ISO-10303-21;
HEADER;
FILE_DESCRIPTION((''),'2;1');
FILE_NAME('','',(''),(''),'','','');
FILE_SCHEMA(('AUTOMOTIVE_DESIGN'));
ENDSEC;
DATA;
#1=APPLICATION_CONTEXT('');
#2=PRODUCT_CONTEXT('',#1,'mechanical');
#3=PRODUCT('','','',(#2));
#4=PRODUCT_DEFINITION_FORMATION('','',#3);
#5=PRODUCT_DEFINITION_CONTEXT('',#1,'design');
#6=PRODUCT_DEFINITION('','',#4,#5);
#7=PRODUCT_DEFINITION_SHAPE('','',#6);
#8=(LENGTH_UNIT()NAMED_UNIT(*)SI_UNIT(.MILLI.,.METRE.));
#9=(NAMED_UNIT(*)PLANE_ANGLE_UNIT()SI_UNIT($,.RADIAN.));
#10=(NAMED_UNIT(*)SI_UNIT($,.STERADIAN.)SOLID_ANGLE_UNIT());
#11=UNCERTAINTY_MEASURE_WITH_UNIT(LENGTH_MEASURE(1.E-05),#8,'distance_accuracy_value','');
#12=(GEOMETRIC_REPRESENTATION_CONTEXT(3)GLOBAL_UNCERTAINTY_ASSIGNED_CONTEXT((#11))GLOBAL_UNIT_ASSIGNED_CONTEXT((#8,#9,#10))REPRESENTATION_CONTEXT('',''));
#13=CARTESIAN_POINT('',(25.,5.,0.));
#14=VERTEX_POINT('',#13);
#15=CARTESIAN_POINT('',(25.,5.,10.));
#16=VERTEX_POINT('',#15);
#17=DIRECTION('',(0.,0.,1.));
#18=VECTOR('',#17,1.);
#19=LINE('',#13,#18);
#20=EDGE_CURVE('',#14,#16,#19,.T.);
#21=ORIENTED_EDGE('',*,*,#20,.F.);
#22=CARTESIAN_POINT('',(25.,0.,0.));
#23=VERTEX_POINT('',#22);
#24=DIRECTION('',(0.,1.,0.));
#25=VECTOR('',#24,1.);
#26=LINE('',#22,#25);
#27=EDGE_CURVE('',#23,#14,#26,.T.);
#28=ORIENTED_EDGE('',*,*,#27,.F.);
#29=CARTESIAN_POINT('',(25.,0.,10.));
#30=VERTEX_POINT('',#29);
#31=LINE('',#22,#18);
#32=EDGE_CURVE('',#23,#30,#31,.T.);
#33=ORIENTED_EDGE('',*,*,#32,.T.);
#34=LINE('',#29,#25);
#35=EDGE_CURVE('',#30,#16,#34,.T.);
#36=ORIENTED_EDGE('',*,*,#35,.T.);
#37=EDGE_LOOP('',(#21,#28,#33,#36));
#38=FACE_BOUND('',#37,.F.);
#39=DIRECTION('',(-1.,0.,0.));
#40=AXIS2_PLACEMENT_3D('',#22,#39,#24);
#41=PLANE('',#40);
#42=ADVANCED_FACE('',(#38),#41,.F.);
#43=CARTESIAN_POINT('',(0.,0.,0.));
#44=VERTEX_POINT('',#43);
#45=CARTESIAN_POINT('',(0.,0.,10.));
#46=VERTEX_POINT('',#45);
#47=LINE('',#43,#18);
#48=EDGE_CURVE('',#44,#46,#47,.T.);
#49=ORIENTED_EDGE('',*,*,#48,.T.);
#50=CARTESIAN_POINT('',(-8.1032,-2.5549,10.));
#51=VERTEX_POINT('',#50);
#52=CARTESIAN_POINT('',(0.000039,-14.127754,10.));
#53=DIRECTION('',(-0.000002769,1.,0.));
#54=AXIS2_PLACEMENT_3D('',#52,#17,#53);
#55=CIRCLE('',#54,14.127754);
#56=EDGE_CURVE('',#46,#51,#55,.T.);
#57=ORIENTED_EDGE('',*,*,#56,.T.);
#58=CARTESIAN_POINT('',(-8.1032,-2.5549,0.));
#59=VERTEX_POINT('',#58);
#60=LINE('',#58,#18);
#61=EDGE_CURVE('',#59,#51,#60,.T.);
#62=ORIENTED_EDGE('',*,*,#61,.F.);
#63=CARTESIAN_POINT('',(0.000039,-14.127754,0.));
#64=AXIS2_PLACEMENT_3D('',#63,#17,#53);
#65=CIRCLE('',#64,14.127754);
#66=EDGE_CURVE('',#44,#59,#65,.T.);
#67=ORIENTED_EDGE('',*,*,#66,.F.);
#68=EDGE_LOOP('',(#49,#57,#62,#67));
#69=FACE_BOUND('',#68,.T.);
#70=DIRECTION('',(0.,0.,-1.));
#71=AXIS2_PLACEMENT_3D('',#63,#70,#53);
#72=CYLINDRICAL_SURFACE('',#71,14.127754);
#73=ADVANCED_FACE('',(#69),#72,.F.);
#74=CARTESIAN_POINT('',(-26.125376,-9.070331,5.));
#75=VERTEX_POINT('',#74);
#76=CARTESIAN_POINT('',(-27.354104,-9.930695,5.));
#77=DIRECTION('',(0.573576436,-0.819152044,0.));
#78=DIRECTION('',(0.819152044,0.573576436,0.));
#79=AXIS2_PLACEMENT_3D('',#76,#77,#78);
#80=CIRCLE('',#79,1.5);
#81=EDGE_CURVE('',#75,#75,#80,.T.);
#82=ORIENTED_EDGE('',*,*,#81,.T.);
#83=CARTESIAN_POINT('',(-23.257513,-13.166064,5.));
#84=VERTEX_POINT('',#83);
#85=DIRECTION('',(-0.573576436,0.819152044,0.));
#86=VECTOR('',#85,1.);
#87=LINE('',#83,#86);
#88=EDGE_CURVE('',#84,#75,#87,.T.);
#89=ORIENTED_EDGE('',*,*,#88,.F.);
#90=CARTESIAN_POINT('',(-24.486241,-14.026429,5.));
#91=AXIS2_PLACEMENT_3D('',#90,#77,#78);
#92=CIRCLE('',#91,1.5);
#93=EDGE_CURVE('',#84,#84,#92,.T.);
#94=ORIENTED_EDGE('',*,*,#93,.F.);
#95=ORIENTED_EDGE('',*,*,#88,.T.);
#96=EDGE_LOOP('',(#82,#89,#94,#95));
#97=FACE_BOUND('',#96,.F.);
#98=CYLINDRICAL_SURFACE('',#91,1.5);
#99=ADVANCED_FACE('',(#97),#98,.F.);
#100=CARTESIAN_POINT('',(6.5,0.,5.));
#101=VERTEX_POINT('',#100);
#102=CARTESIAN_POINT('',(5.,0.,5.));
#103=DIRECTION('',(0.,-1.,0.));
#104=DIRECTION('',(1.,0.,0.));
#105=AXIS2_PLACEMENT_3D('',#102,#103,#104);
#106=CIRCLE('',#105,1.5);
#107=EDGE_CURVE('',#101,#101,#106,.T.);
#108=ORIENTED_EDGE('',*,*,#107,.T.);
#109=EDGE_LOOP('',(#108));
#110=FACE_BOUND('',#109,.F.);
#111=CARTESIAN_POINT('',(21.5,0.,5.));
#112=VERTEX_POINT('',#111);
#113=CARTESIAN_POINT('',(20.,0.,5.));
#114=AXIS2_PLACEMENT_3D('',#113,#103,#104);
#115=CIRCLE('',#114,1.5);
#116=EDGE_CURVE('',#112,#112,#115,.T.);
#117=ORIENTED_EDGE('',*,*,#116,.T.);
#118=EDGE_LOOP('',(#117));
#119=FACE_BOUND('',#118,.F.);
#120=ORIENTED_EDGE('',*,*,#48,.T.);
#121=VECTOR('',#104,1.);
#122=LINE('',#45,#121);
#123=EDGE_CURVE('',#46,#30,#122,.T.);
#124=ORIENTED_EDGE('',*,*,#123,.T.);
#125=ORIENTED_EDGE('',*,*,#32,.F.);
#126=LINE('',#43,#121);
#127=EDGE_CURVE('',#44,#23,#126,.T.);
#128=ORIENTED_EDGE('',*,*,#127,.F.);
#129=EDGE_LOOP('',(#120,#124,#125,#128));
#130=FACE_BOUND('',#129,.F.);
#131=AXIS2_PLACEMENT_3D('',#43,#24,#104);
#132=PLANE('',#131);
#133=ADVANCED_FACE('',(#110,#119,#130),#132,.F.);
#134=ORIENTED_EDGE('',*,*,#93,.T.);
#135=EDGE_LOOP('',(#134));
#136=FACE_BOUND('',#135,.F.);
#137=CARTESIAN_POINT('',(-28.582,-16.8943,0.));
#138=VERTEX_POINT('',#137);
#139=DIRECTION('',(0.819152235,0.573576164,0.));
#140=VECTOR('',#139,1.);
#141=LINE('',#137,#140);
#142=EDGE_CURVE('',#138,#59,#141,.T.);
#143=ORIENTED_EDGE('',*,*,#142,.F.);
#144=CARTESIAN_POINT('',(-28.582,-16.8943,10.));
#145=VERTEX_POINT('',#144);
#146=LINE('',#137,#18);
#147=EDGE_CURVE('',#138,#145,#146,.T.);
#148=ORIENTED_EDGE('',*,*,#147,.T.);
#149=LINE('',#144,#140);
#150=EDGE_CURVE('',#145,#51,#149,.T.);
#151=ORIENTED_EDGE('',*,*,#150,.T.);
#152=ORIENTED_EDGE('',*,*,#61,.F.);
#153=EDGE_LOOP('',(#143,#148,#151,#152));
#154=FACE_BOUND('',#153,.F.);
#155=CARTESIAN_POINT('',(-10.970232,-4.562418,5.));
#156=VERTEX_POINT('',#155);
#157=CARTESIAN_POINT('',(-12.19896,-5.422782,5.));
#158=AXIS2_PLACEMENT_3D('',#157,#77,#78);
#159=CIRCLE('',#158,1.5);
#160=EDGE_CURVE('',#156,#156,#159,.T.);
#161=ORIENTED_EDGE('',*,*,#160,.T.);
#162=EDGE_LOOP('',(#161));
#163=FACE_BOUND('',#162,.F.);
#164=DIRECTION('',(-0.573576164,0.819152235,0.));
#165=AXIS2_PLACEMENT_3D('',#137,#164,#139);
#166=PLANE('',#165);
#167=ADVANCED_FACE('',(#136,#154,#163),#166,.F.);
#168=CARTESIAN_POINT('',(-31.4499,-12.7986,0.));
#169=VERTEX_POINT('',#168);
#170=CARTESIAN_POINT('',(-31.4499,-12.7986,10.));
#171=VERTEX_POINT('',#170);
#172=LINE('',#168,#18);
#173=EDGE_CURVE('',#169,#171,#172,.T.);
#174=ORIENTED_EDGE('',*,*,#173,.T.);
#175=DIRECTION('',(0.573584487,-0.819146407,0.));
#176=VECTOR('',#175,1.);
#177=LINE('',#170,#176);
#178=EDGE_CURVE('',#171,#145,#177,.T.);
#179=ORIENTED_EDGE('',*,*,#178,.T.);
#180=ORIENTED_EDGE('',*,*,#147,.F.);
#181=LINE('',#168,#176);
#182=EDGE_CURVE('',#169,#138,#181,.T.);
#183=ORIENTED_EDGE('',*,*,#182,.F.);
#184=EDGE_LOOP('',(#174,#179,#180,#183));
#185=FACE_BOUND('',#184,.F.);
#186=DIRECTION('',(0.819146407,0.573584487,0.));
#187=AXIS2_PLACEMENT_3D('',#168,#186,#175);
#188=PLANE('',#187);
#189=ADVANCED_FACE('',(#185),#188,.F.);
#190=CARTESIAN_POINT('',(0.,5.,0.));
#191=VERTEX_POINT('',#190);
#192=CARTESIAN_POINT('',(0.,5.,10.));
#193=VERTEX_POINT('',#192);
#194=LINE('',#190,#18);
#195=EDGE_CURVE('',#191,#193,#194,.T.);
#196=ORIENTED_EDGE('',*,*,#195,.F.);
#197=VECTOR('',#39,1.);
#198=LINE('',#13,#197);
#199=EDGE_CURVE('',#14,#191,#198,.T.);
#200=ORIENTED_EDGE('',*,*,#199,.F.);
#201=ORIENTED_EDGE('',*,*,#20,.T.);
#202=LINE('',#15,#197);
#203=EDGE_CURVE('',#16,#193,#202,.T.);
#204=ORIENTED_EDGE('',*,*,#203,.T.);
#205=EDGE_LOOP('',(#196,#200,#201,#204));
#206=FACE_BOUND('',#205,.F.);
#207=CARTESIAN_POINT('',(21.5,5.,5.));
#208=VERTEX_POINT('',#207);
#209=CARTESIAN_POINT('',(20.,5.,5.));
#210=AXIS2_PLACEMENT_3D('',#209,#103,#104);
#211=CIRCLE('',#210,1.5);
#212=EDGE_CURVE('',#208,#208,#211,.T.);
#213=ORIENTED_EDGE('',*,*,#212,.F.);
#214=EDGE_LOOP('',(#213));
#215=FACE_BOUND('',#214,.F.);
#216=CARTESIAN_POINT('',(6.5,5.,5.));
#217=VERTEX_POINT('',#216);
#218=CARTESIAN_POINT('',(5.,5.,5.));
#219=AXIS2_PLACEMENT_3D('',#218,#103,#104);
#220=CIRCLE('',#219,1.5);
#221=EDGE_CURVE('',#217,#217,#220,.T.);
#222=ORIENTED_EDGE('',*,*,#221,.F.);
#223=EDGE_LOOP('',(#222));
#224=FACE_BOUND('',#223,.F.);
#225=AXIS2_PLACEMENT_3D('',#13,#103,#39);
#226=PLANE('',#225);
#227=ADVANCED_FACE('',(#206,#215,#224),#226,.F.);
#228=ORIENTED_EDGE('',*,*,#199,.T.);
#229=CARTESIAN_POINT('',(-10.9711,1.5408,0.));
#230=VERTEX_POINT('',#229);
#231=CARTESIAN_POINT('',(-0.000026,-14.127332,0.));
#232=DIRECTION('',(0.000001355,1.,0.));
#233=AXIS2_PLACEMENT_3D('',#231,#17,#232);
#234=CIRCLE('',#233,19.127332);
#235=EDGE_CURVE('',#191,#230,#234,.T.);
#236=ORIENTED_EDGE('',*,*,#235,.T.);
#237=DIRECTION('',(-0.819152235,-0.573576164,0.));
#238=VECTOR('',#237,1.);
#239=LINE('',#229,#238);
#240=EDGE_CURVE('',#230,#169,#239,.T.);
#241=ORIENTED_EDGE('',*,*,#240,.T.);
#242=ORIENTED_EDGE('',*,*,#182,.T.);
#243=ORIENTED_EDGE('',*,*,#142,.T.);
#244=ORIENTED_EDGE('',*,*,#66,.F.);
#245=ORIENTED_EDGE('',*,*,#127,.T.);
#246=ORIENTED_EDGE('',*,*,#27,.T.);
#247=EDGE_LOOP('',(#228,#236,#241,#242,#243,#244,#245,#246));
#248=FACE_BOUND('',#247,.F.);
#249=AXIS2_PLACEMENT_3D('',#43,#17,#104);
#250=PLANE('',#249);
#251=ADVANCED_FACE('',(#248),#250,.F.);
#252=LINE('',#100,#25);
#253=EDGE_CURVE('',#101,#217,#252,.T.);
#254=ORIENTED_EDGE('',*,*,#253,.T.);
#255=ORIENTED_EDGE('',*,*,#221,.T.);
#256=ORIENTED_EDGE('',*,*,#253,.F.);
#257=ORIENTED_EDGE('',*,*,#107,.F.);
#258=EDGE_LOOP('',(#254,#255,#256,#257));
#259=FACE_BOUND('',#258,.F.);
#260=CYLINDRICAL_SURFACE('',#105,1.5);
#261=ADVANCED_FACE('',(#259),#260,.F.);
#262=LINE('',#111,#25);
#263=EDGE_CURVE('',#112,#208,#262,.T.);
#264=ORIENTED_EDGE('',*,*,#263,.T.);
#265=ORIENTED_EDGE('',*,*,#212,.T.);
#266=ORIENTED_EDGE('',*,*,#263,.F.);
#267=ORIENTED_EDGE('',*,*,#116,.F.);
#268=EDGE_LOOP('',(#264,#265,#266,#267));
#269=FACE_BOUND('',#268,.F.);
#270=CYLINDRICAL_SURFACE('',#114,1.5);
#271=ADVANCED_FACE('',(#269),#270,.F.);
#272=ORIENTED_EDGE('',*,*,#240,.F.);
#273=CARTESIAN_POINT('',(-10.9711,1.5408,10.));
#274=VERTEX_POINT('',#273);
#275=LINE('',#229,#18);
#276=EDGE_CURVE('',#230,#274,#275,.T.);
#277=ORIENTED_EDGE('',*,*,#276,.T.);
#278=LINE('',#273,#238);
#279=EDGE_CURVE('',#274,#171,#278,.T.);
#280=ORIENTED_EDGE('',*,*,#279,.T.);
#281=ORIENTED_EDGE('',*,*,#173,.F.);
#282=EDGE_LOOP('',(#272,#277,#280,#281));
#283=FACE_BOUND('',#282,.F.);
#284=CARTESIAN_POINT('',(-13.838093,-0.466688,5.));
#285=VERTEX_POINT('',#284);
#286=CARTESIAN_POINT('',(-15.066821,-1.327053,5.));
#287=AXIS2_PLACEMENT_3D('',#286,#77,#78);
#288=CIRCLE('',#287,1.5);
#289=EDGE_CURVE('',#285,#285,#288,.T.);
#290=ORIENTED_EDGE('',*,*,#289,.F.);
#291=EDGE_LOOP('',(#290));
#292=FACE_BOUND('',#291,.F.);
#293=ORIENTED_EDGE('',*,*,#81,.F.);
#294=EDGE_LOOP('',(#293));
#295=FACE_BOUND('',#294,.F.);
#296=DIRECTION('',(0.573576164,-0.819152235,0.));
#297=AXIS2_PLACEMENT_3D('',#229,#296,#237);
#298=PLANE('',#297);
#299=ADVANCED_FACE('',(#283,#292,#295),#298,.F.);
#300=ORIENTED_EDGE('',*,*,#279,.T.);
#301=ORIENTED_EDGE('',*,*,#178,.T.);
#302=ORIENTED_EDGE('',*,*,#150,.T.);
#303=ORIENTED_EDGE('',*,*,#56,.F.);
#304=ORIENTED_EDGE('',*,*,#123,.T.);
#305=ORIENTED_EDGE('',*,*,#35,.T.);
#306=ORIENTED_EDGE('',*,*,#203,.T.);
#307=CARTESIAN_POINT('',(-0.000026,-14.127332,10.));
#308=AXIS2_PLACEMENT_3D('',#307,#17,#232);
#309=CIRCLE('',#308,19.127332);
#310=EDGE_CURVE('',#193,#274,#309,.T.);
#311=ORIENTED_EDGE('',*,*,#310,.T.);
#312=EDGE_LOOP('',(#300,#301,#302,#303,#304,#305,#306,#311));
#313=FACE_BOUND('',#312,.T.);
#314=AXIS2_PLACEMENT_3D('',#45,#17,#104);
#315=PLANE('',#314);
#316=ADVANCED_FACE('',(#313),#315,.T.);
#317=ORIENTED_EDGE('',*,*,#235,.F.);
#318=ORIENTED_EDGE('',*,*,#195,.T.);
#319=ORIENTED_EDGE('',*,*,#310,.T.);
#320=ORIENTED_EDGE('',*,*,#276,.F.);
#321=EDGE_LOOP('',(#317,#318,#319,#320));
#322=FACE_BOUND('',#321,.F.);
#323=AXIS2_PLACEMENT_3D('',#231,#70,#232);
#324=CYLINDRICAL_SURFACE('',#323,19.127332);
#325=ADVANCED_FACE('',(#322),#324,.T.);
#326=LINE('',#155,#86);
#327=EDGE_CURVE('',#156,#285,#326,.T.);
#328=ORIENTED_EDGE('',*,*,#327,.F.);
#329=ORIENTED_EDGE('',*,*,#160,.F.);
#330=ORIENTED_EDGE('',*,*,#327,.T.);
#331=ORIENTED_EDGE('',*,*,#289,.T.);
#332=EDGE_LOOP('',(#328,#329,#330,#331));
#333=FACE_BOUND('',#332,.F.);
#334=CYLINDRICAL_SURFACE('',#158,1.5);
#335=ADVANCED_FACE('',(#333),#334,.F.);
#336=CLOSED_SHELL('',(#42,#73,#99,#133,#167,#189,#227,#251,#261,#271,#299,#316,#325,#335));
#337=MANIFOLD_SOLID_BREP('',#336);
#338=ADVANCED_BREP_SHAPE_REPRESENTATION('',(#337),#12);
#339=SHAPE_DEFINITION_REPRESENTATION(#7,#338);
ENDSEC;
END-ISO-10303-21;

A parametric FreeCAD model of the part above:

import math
import FreeCAD as App
import Part
import Sketcher

V = App.Vector
Q = App.Units.Quantity

doc = App.newDocument("Part")
body = doc.addObject("PartDesign::Body", "Body")

sketch1 = body.newObject("Sketcher::SketchObject", "Sketch")
sketch1.AttachmentSupport = (doc.getObject("XY_Plane"), [""])
sketch1.MapMode = "FlatFace"
sketch1.addGeometry(Part.LineSegment(V(25, 5, 0), V(0, 5, 0)), False)
sketch1.addGeometry(Part.ArcOfCircle(Part.Circle(V(0, -14.1, 0), V(0, 0, 1), 19.1), math.radians(90), math.radians(125)), False)
sketch1.addGeometry(Part.LineSegment(V(-11, 1.5, 0), V(-31.4, -12.8, 0)), False)
sketch1.addGeometry(Part.LineSegment(V(-31.4, -12.8, 0), V(-28.6, -16.9, 0)), False)
sketch1.addGeometry(Part.LineSegment(V(-28.6, -16.9, 0), V(-8.1, -2.6, 0)), False)
sketch1.addGeometry(Part.ArcOfCircle(Part.Circle(V(0, -14.1, 0), V(0, 0, 1), 14.1), math.radians(90), math.radians(125)), False)
sketch1.addGeometry(Part.LineSegment(V(0, 0, 0), V(25, 0, 0)), False)
sketch1.addGeometry(Part.LineSegment(V(25, 0, 0), V(25, 5, 0)), False)
sketch1.addConstraint(Sketcher.Constraint("Tangent", 0, 2, 1, 1))
sketch1.addConstraint(Sketcher.Constraint("Tangent", 1, 2, 2, 1))
sketch1.addConstraint(Sketcher.Constraint("Coincident", 2, 2, 3, 1))
sketch1.addConstraint(Sketcher.Constraint("Coincident", 3, 2, 4, 1))
sketch1.addConstraint(Sketcher.Constraint("Tangent", 4, 2, 5, 2))
sketch1.addConstraint(Sketcher.Constraint("Tangent", 5, 1, 6, 1))
sketch1.addConstraint(Sketcher.Constraint("Coincident", 6, 2, 7, 1))
sketch1.addConstraint(Sketcher.Constraint("Coincident", 7, 2, 0, 1))
sketch1.addConstraint(Sketcher.Constraint("Horizontal", 0))
sketch1.addConstraint(Sketcher.Constraint("Horizontal", 6))
sketch1.addConstraint(Sketcher.Constraint("Vertical", 7))
sketch1.addConstraint(Sketcher.Constraint("Coincident", 5, 1, -1, 1))
sketch1.addConstraint(Sketcher.Constraint("Coincident", 5, 3, 1, 3))
sketch1.addConstraint(Sketcher.Constraint("Perpendicular", 2, 3))
sketch1.addConstraint(Sketcher.Constraint("Perpendicular", 3, 4))
sketch1.addConstraint(Sketcher.Constraint("DistanceX", 0, 2, 0, 1, 25.0))
sketch1.addConstraint(Sketcher.Constraint("DistanceY", 7, 1, 7, 2, 5.0))
sketch1.addConstraint(Sketcher.Constraint("Angle", 2, Q("-145 deg")))
sketch1.addConstraint(Sketcher.Constraint("Distance", 2, 25.0))
sketch1.addConstraint(Sketcher.Constraint("Radius", 1, 19.1275))
pad1 = body.newObject("PartDesign::Pad", "Pad")
pad1.Profile = sketch1
pad1.Length = 10

sketch2 = body.newObject("Sketcher::SketchObject", "Sketch001")
sketch2.AttachmentSupport = (doc.getObject("XZ_Plane"), [""])
sketch2.MapMode = "FlatFace"
sketch2.addGeometry(Part.Circle(V(5, 5, 0), V(0, 0, 1), 1.5), False)
sketch2.addGeometry(Part.Circle(V(20, 5, 0), V(0, 0, 1), 1.5), False)
sketch2.addConstraint(Sketcher.Constraint("Equal", 0, 1))
sketch2.addConstraint(Sketcher.Constraint("Horizontal", 0, 3, 1, 3))
sketch2.addConstraint(Sketcher.Constraint("Diameter", 0, 3.0))
sketch2.addConstraint(Sketcher.Constraint("DistanceX", -1, 1, 0, 3, 5.0))
sketch2.addConstraint(Sketcher.Constraint("DistanceY", -1, 1, 0, 3, 5.0))
sketch2.addConstraint(Sketcher.Constraint("DistanceX", 0, 3, 1, 3, 15.0))
pocket1 = body.newObject("PartDesign::Pocket", "Pocket")
pocket1.Profile = sketch2
pocket1.Type = "ThroughAll"

sketch3 = body.newObject("Sketcher::SketchObject", "Sketch002")
sketch3.Placement = App.Placement(V(-8.1032, -2.5549, 0), App.Rotation(V(0.819152044, 0.573576436, 0), V(0, 0, 0.999999999), V(0.573576436, -0.819152044, 0), "ZXY"))
sketch3.addGeometry(Part.Circle(V(-20, 5, 0), V(0, 0, 1), 1.5), False)
sketch3.addGeometry(Part.Circle(V(-5, 5, 0), V(0, 0, 1), 1.5), False)
sketch3.addConstraint(Sketcher.Constraint("Equal", 0, 1))
sketch3.addConstraint(Sketcher.Constraint("Horizontal", 0, 3, 1, 3))
sketch3.addConstraint(Sketcher.Constraint("Diameter", 0, 3.0))
sketch3.addConstraint(Sketcher.Constraint("DistanceY", -1, 1, 0, 3, 5.0))
sketch3.addConstraint(Sketcher.Constraint("DistanceX", 1, 3, -1, 1, 5.0))
sketch3.addConstraint(Sketcher.Constraint("DistanceX", 0, 3, 1, 3, 15.0))
pocket2 = body.newObject("PartDesign::Pocket", "Pocket001")
pocket2.Profile = sketch3
pocket2.Type = "ThroughAll"

doc.recompute()
